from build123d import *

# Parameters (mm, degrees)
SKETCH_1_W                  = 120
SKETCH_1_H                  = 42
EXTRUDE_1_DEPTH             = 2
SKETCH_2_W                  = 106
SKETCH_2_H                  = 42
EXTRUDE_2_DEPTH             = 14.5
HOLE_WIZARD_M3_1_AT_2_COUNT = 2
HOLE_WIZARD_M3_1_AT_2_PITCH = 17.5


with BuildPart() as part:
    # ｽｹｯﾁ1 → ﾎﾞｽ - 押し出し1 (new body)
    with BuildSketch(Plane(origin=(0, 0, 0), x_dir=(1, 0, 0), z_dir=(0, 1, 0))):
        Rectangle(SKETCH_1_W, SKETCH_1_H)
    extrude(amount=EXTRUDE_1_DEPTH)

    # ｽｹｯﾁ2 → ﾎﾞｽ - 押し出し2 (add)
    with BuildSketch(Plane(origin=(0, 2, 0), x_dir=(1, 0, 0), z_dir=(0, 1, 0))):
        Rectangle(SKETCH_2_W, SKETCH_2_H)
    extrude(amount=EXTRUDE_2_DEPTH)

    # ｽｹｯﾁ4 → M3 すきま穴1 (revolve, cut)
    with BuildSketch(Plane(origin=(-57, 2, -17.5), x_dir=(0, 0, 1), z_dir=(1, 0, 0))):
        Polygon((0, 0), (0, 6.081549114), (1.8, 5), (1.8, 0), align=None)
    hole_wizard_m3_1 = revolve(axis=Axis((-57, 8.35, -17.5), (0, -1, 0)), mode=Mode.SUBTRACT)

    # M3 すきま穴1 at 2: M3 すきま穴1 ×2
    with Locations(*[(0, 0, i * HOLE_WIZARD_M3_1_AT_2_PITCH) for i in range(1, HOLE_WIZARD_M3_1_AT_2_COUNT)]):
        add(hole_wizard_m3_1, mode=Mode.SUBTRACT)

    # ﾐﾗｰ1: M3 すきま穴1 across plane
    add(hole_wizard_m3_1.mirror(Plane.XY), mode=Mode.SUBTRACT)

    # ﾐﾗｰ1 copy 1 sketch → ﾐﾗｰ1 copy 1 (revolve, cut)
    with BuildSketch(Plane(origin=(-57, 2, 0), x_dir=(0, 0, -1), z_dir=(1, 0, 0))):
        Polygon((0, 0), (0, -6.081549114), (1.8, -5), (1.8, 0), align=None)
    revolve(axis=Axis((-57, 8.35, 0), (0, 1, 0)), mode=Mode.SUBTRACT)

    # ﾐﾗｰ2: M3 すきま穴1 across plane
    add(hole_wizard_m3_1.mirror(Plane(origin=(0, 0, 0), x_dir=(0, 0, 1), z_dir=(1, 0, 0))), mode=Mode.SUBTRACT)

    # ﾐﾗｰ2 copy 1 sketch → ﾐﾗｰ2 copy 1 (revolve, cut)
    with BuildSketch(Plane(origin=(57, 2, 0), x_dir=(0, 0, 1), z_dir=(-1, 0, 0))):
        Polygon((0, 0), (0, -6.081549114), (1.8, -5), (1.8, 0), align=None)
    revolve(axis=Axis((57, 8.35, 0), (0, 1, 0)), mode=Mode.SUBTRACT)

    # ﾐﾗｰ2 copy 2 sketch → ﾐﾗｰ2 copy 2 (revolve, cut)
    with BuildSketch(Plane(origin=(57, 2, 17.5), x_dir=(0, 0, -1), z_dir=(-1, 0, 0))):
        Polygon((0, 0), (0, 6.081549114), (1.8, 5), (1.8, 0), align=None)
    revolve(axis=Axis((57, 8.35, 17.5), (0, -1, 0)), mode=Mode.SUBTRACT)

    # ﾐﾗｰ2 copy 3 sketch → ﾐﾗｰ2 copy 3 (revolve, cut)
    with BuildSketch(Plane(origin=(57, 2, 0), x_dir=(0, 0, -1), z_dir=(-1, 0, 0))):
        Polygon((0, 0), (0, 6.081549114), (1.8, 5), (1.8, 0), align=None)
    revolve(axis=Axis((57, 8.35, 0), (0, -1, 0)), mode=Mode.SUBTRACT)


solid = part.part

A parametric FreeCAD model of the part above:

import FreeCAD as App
import Part
import Sketcher
from FreeCAD import Vector
Q = App.Units.Quantity

doc = App.newDocument("Part")
body = doc.addObject("PartDesign::Body", "Body")

sketch1 = body.newObject("Sketcher::SketchObject", "Sketch")
sketch1.AttachmentSupport = (doc.getObject("XZ_Plane"), [""])
sketch1.MapMode = "FlatFace"
sketch1.addGeometry(Part.LineSegment(Vector(-60, -21, 0), Vector(-60, 21, 0)), False)
sketch1.addGeometry(Part.LineSegment(Vector(-60, 21, 0), Vector(60, 21, 0)), False)
sketch1.addGeometry(Part.LineSegment(Vector(60, 21, 0), Vector(60, -21, 0)), False)
sketch1.addGeometry(Part.LineSegment(Vector(60, -21, 0), Vector(-60, -21, 0)), False)
sketch1.addConstraint(Sketcher.Constraint("Coincident", 0, 2, 1, 1))
sketch1.addConstraint(Sketcher.Constraint("Coincident", 1, 2, 2, 1))
sketch1.addConstraint(Sketcher.Constraint("Coincident", 2, 2, 3, 1))
sketch1.addConstraint(Sketcher.Constraint("Coincident", 3, 2, 0, 1))
sketch1.addConstraint(Sketcher.Constraint("Vertical", 0))
sketch1.addConstraint(Sketcher.Constraint("Horizontal", 1))
sketch1.addConstraint(Sketcher.Constraint("Vertical", 2))
sketch1.addConstraint(Sketcher.Constraint("Horizontal", 3))
sketch1.addConstraint(Sketcher.Constraint("Symmetric", 0, 2, 2, 2, -1, 1))
sketch1.addConstraint(Sketcher.Constraint("DistanceX", 1, 1, 1, 2, 120.0))
sketch1.addConstraint(Sketcher.Constraint("DistanceY", 0, 1, 0, 2, 42.0))
pad1 = body.newObject("PartDesign::Pad", "Pad")
pad1.Profile = sketch1
pad1.Length = 2
pad1.Reversed = True

sketch2 = body.newObject("Sketcher::SketchObject", "Sketch001")
sketch2.AttachmentSupport = (doc.getObject("XZ_Plane"), [""])
sketch2.MapMode = "FlatFace"
sketch2.AttachmentOffset = App.Placement(Vector(0, 0, -2), App.Rotation())
sketch2.addGeometry(Part.LineSegment(Vector(-53, -21, 0), Vector(-53, 21, 0)), False)
sketch2.addGeometry(Part.LineSegment(Vector(-53, 21, 0), Vector(53, 21, 0)), False)
sketch2.addGeometry(Part.LineSegment(Vector(53, 21, 0), Vector(53, -21, 0)), False)
sketch2.addGeometry(Part.LineSegment(Vector(53, -21, 0), Vector(-53, -21, 0)), False)
sketch2.addConstraint(Sketcher.Constraint("Coincident", 0, 2, 1, 1))
sketch2.addConstraint(Sketcher.Constraint("Coincident", 1, 2, 2, 1))
sketch2.addConstraint(Sketcher.Constraint("Coincident", 2, 2, 3, 1))
sketch2.addConstraint(Sketcher.Constraint("Coincident", 3, 2, 0, 1))
sketch2.addConstraint(Sketcher.Constraint("Vertical", 0))
sketch2.addConstraint(Sketcher.Constraint("Horizontal", 1))
sketch2.addConstraint(Sketcher.Constraint("Vertical", 2))
sketch2.addConstraint(Sketcher.Constraint("Horizontal", 3))
sketch2.addConstraint(Sketcher.Constraint("Symmetric", 0, 2, 2, 2, -1, 1))
sketch2.addConstraint(Sketcher.Constraint("DistanceX", 1, 1, 1, 2, 106.0))
sketch2.addConstraint(Sketcher.Constraint("DistanceY", 0, 1, 0, 2, 42.0))
pad2 = body.newObject("PartDesign::Pad", "Pad001")
pad2.Profile = sketch2
pad2.Length = 14.5
pad2.Reversed = True

sketch3 = body.newObject("Sketcher::SketchObject", "Sketch002")
sketch3.AttachmentSupport = (doc.getObject("YZ_Plane"), [""])
sketch3.MapMode = "FlatFace"
sketch3.AttachmentOffset = App.Placement(Vector(0, 0, -57), App.Rotation())
sketch3.addGeometry(Part.LineSegment(Vector(-4.1, -17.5, 0), Vector(2, -17.5, 0)), False)
sketch3.addGeometry(Part.LineSegment(Vector(2, -17.5, 0), Vector(2, -15.7, 0)), False)
sketch3.addGeometry(Part.LineSegment(Vector(2, -15.7, 0), Vector(-3, -15.7, 0)), False)
sketch3.addGeometry(Part.LineSegment(Vector(-3, -15.7, 0), Vector(-4.1, -17.5, 0)), False)
sketch3.addGeometry(Part.LineSegment(Vector(2, -17.5, 0), Vector(-4.1, -17.5, 0)), True)
sketch3.addConstraint(Sketcher.Constraint("Coincident", 0, 2, 1, 1))
sketch3.addConstraint(Sketcher.Constraint("Coincident", 1, 2, 2, 1))
sketch3.addConstraint(Sketcher.Constraint("Coincident", 2, 2, 3, 1))
sketch3.addConstraint(Sketcher.Constraint("Coincident", 3, 2, 0, 1))
sketch3.addConstraint(Sketcher.Constraint("Horizontal", 0))
sketch3.addConstraint(Sketcher.Constraint("Vertical", 1))
sketch3.addConstraint(Sketcher.Constraint("Horizontal", 2))
sketch3.addConstraint(Sketcher.Constraint("Horizontal", 4))
sketch3.addConstraint(Sketcher.Constraint("Coincident", 4, 1, 0, 2))
sketch3.addConstraint(Sketcher.Constraint("Equal", 0, 4))
sketch3.addConstraint(Sketcher.Constraint("DistanceX", 2, 2, 2, 1, 5.0))
sketch3.addConstraint(Sketcher.Constraint("Angle", 3, Q("-121 deg")))
sketch3.addConstraint(Sketcher.Constraint("DistanceY", 1, 1, 1, 2, 1.8))
sketch3.addConstraint(Sketcher.Constraint("DistanceX", -1, 1, 0, 2, 2.0))
sketch3.addConstraint(Sketcher.Constraint("DistanceY", 0, 2, -1, 1, 17.5))
groove = body.newObject("PartDesign::Groove", "Groove")
groove.Profile = sketch3
groove.ReferenceAxis = (sketch3, ["Axis0"])
groove.Angle = 360
doc.recompute()

linearpattern = body.newObject("PartDesign::LinearPattern", "LinearPattern")
linearpattern.Originals = [groove]
linearpattern.Direction = (doc.getObject("Z_Axis"), [""])
linearpattern.Mode = "offset"
linearpattern.Offset = 17.5
linearpattern.Occurrences = 2
body.Tip = linearpattern
doc.recompute()

mirrored = body.newObject("PartDesign::Mirrored", "Mirrored")
mirrored.Originals = [groove]
mirrored.MirrorPlane = (doc.getObject("XY_Plane"), [""])
body.Tip = mirrored

sketch4 = body.newObject("Sketcher::SketchObject", "Sketch003")
sketch4.AttachmentSupport = (doc.getObject("YZ_Plane"), [""])
sketch4.MapMode = "FlatFace"
sketch4.AttachmentOffset = App.Placement(Vector(0, 0, -57), App.Rotation())
sketch4.addGeometry(Part.LineSegment(Vector(2, 0, 0), Vector(-4.1, 0, 0)), False)
sketch4.addGeometry(Part.LineSegment(Vector(-4.1, 0, 0), Vector(-3, -1.8, 0)), False)
sketch4.addGeometry(Part.LineSegment(Vector(-3, -1.8, 0), Vector(2, -1.8, 0)), False)
sketch4.addGeometry(Part.LineSegment(Vector(2, -1.8, 0), Vector(2, 0, 0)), False)
sketch4.addConstraint(Sketcher.Constraint("Coincident", 0, 2, 1, 1))
sketch4.addConstraint(Sketcher.Constraint("Coincident", 1, 2, 2, 1))
sketch4.addConstraint(Sketcher.Constraint("Coincident", 2, 2, 3, 1))
sketch4.addConstraint(Sketcher.Constraint("Coincident", 3, 2, 0, 1))
sketch4.addConstraint(Sketcher.Constraint("Horizontal", 0))
sketch4.addConstraint(Sketcher.Constraint("Horizontal", 2))
sketch4.addConstraint(Sketcher.Constraint("Vertical", 3))
sketch4.addConstraint(Sketcher.Constraint("PointOnObject", 0, 2, -1))
sketch4.addConstraint(Sketcher.Constraint("DistanceX", 2, 1, 2, 2, 5.0))
sketch4.addConstraint(Sketcher.Constraint("Angle", 1, Q("-59 deg")))
sketch4.addConstraint(Sketcher.Constraint("DistanceY", 3, 1, 3, 2, 1.8))
sketch4.addConstraint(Sketcher.Constraint("DistanceX", 1, 2, -1, 1, 3.0))
groove2 = body.newObject("PartDesign::Groove", "Groove001")
groove2.Profile = sketch4
groove2.ReferenceAxis = (sketch4, ["H_Axis"])
groove2.Angle = 360
doc.recompute()

mirrored2 = body.newObject("PartDesign::Mirrored", "Mirrored001")
mirrored2.Originals = [groove]
mirrored2.MirrorPlane = (doc.getObject("YZ_Plane"), [""])
body.Tip = mirrored2

sketch5 = body.newObject("Sketcher::SketchObject", "Sketch004")
sketch5.AttachmentSupport = (doc.getObject("YZ_Plane"), [""])
sketch5.MapMode = "FlatFace"
sketch5.AttachmentOffset = App.Placement(Vector(0, 0, 57), App.Rotation())
sketch5.addGeometry(Part.LineSegment(Vector(2, 0, 0), Vector(-4.1, 0, 0)), False)
sketch5.addGeometry(Part.LineSegment(Vector(-4.1, 0, 0), Vector(-3, 1.8, 0)), False)
sketch5.addGeometry(Part.LineSegment(Vector(-3, 1.8, 0), Vector(2, 1.8, 0)), False)
sketch5.addGeometry(Part.LineSegment(Vector(2, 1.8, 0), Vector(2, 0, 0)), False)
sketch5.addConstraint(Sketcher.Constraint("Coincident", 0, 2, 1, 1))
sketch5.addConstraint(Sketcher.Constraint("Coincident", 1, 2, 2, 1))
sketch5.addConstraint(Sketcher.Constraint("Coincident", 2, 2, 3, 1))
sketch5.addConstraint(Sketcher.Constraint("Coincident", 3, 2, 0, 1))
sketch5.addConstraint(Sketcher.Constraint("Horizontal", 0))
sketch5.addConstraint(Sketcher.Constraint("Horizontal", 2))
sketch5.addConstraint(Sketcher.Constraint("Vertical", 3))
sketch5.addConstraint(Sketcher.Constraint("PointOnObject", 0, 2, -1))
sketch5.addConstraint(Sketcher.Constraint("DistanceX", 2, 1, 2, 2, 5.0))
sketch5.addConstraint(Sketcher.Constraint("Angle", 1, Q("59 deg")))
sketch5.addConstraint(Sketcher.Constraint("DistanceY", 3, 2, 3, 1, 1.8))
sketch5.addConstraint(Sketcher.Constraint("DistanceX", 1, 2, -1, 1, 3.0))
groove3 = body.newObject("PartDesign::Groove", "Groove002")
groove3.Profile = sketch5
groove3.ReferenceAxis = (sketch5, ["H_Axis"])
groove3.Angle = 360

sketch6 = body.newObject("Sketcher::SketchObject", "Sketch005")
sketch6.AttachmentSupport = (doc.getObject("YZ_Plane"), [""])
sketch6.MapMode = "FlatFace"
sketch6.AttachmentOffset = App.Placement(Vector(0, 0, 57), App.Rotation())
sketch6.addGeometry(Part.LineSegment(Vector(-4.1, 17.5, 0), Vector(2, 17.5, 0)), False)
sketch6.addGeometry(Part.LineSegment(Vector(2, 17.5, 0), Vector(2, 15.7, 0)), False)
sketch6.addGeometry(Part.LineSegment(Vector(2, 15.7, 0), Vector(-3, 15.7, 0)), False)
sketch6.addGeometry(Part.LineSegment(Vector(-3, 15.7, 0), Vector(-4.1, 17.5, 0)), False)
sketch6.addGeometry(Part.LineSegment(Vector(2, 17.5, 0), Vector(-4.1, 17.5, 0)), True)
sketch6.addConstraint(Sketcher.Constraint("Coincident", 0, 2, 1, 1))
sketch6.addConstraint(Sketcher.Constraint("Coincident", 1, 2, 2, 1))
sketch6.addConstraint(Sketcher.Constraint("Coincident", 2, 2, 3, 1))
sketch6.addConstraint(Sketcher.Constraint("Coincident", 3, 2, 0, 1))
sketch6.addConstraint(Sketcher.Constraint("Horizontal", 0))
sketch6.addConstraint(Sketcher.Constraint("Vertical", 1))
sketch6.addConstraint(Sketcher.Constraint("Horizontal", 2))
sketch6.addConstraint(Sketcher.Constraint("Horizontal", 4))
sketch6.addConstraint(Sketcher.Constraint("Coincident", 4, 1, 0, 2))
sketch6.addConstraint(Sketcher.Constraint("Equal", 0, 4))
sketch6.addConstraint(Sketcher.Constraint("DistanceX", 2, 2, 2, 1, 5.0))
sketch6.addConstraint(Sketcher.Constraint("Angle", 3, Q("121 deg")))
sketch6.addConstraint(Sketcher.Constraint("DistanceY", 1, 2, 1, 1, 1.8))
sketch6.addConstraint(Sketcher.Constraint("DistanceX", -1, 1, 0, 2, 2.0))
sketch6.addConstraint(Sketcher.Constraint("DistanceY", -1, 1, 0, 2, 17.5))
groove4 = body.newObject("PartDesign::Groove", "Groove003")
groove4.Profile = sketch6
groove4.ReferenceAxis = (sketch6, ["Axis0"])
groove4.Angle = 360

sketch7 = body.newObject("Sketcher::SketchObject", "Sketch006")
sketch7.AttachmentSupport = (doc.getObject("YZ_Plane"), [""])
sketch7.MapMode = "FlatFace"
sketch7.AttachmentOffset = App.Placement(Vector(0, 0, 57), App.Rotation())
sketch7.addGeometry(Part.LineSegment(Vector(-4.1, 0, 0), Vector(2, 0, 0)), False)
sketch7.addGeometry(Part.LineSegment(Vector(2, 0, 0), Vector(2, -1.8, 0)), False)
sketch7.addGeometry(Part.LineSegment(Vector(2, -1.8, 0), Vector(-3, -1.8, 0)), False)
sketch7.addGeometry(Part.LineSegment(Vector(-3, -1.8, 0), Vector(-4.1, 0, 0)), False)
sketch7.addConstraint(Sketcher.Constraint("Coincident", 0, 2, 1, 1))
sketch7.addConstraint(Sketcher.Constraint("Coincident", 1, 2, 2, 1))
sketch7.addConstraint(Sketcher.Constraint("Coincident", 2, 2, 3, 1))
sketch7.addConstraint(Sketcher.Constraint("Coincident", 3, 2, 0, 1))
sketch7.addConstraint(Sketcher.Constraint("Horizontal", 0))
sketch7.addConstraint(Sketcher.Constraint("Vertical", 1))
sketch7.addConstraint(Sketcher.Constraint("Horizontal", 2))
sketch7.addConstraint(Sketcher.Constraint("PointOnObject", 0, 2, -1))
sketch7.addConstraint(Sketcher.Constraint("DistanceX", 2, 2, 2, 1, 5.0))
sketch7.addConstraint(Sketcher.Constraint("Angle", 3, Q("121 deg")))
sketch7.addConstraint(Sketcher.Constraint("DistanceY", 1, 2, 1, 1, 1.8))
sketch7.addConstraint(Sketcher.Constraint("DistanceX", -1, 1, 0, 2, 2.0))
groove5 = body.newObject("PartDesign::Groove", "Groove004")
groove5.Profile = sketch7
groove5.ReferenceAxis = (sketch7, ["H_Axis"])
groove5.Angle = 360

doc.recompute()
